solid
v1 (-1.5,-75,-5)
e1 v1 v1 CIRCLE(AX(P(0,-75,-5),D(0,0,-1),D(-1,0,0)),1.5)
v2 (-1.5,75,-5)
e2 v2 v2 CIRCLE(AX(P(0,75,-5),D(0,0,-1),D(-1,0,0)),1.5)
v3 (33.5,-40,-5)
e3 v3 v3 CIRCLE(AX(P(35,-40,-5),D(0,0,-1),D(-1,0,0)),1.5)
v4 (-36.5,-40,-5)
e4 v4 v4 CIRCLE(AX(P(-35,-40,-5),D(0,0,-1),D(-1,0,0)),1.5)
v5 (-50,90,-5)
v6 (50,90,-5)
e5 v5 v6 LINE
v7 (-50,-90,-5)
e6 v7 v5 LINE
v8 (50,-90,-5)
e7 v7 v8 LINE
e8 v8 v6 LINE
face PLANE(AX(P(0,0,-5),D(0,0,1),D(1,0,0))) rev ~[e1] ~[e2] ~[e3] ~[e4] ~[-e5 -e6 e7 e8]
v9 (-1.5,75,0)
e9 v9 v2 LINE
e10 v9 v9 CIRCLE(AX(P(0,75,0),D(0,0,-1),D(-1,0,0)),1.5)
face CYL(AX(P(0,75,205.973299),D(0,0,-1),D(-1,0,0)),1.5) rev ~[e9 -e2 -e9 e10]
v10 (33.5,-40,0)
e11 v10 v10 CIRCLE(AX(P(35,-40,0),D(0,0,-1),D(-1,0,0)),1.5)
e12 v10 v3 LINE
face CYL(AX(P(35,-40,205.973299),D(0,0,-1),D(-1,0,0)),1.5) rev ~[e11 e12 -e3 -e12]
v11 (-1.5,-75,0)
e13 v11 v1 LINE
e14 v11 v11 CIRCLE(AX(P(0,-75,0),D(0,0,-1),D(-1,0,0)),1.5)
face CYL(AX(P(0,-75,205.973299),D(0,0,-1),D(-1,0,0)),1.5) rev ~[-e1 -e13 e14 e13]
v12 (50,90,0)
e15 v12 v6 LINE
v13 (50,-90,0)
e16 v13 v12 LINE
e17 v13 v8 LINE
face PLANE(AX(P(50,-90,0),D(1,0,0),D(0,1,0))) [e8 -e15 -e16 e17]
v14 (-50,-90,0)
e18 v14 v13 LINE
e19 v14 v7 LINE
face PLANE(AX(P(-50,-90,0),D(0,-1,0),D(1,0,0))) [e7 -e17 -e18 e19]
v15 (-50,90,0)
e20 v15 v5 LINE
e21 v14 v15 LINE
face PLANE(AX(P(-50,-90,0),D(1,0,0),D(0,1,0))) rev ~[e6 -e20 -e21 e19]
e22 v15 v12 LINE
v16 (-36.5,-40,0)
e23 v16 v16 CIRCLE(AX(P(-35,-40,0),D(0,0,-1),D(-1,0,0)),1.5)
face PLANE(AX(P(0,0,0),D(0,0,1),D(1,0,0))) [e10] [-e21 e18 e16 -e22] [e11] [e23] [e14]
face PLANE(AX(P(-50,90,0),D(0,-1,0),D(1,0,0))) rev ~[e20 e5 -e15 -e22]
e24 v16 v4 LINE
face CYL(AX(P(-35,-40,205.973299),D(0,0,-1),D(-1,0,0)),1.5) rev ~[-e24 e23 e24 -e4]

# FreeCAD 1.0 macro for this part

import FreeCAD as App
import Part
import Sketcher

V = App.Vector


def add_polygon(sketch, points):
    """Adds a closed chain of lines whose ends are joined by coincident constraints."""
    first, n = sketch.GeometryCount, len(points)
    for a, b in zip(points, points[1:] + points[:1]):
        sketch.addGeometry(Part.LineSegment(App.Vector(*a, 0), App.Vector(*b, 0)), False)
    for i in range(n):
        sketch.addConstraint(Sketcher.Constraint("Coincident", first + i, 2, first + (i + 1) % n, 1))

doc = App.newDocument("Part")
params = doc.addObject("Spreadsheet::Sheet", "Params")
for row, (alias, value) in enumerate([
    ("sketch1_width", "100 mm"),
    ("sketch1_height", "180 mm"),
    ("pad1_length", "5 mm"),
    ("sketch2_diameter", "3 mm"),
    ("hole_diameter", "3 mm"),
], start=1):
    params.set(f"A{row}", alias)
    params.set(f"B{row}", "=" + value)
    params.setAlias(f"B{row}", alias)

body = doc.addObject("PartDesign::Body", "Body")

# Sketch on XY plane
sketch1 = body.newObject("Sketcher::SketchObject", "Sketch")
sketch1.AttachmentSupport = (doc.getObject("XY_Plane"), [""])
sketch1.MapMode = "FlatFace"
add_polygon(sketch1, [(-50, 90), (-50, -90), (50, -90), (50, 90)])  # lines 0-3
sketch1.addConstraint(Sketcher.Constraint("Vertical", 0))
sketch1.addConstraint(Sketcher.Constraint("Horizontal", 1))
sketch1.addConstraint(Sketcher.Constraint("Vertical", 2))
sketch1.addConstraint(Sketcher.Constraint("Horizontal", 3))
sketch1.addConstraint(Sketcher.Constraint("Symmetric", 0, 2, 2, 2, -1, 1))
sketch1.addConstraint(Sketcher.Constraint("DistanceX", 1, 1, 1, 2, 100.0))
sketch1.addConstraint(Sketcher.Constraint("DistanceY", 0, 2, 0, 1, 180.0))
sketch1.setExpression("Constraints[9]", "Params.sketch1_width")
sketch1.setExpression("Constraints[10]", "Params.sketch1_height")
pad1 = body.newObject("PartDesign::Pad", "Pad")
pad1.Profile = sketch1
pad1.setExpression("Length", "Params.pad1_length")
pad1.Reversed = True

# Sketch on XY plane
sketch2 = body.newObject("Sketcher::SketchObject", "Sketch001")
sketch2.AttachmentSupport = (doc.getObject("XY_Plane"), [""])
sketch2.MapMode = "FlatFace"
sketch2.addGeometry(Part.Circle(V(-35, -40, 0), V(0, 0, 1), 1.5), False)
sketch2.addGeometry(Part.Circle(V(0, -75, 0), V(0, 0, 1), 1.5), False)
sketch2.addGeometry(Part.Circle(V(35, -40, 0), V(0, 0, 1), 1.5), False)
sketch2.addGeometry(Part.Circle(V(0, 75, 0), V(0, 0, 1), 1.5), False)
sketch2.addConstraint(Sketcher.Constraint("Equal", 0, 1))
sketch2.addConstraint(Sketcher.Constraint("Equal", 1, 2))
sketch2.addConstraint(Sketcher.Constraint("Equal", 2, 3))
sketch2.addConstraint(Sketcher.Constraint("Symmetric", 1, 3, 3, 3, -1, 1))
sketch2.addConstraint(Sketcher.Constraint("Symmetric", 0, 3, 2, 3, -2))
sketch2.addConstraint(Sketcher.Constraint("PointOnObject", 1, 3, -2))
sketch2.addConstraint(Sketcher.Constraint("Diameter", 0, 3.0))
sketch2.addConstraint(Sketcher.Constraint("DistanceX", 0, 3, -1, 1, 35.0))
sketch2.addConstraint(Sketcher.Constraint("DistanceY", 0, 3, -1, 1, 40.0))
sketch2.addConstraint(Sketcher.Constraint("DistanceY", 1, 3, -1, 1, 75.0))
sketch2.setExpression("Constraints[6]", "Params.sketch2_diameter")
doc.recompute()
hole = body.newObject("PartDesign::Hole", "Hole")
hole.Profile = sketch2
hole.ThreadType = "None"
hole.setExpression("Diameter", "Params.hole_diameter")
hole.DepthType = "ThroughAll"

doc.recompute()
